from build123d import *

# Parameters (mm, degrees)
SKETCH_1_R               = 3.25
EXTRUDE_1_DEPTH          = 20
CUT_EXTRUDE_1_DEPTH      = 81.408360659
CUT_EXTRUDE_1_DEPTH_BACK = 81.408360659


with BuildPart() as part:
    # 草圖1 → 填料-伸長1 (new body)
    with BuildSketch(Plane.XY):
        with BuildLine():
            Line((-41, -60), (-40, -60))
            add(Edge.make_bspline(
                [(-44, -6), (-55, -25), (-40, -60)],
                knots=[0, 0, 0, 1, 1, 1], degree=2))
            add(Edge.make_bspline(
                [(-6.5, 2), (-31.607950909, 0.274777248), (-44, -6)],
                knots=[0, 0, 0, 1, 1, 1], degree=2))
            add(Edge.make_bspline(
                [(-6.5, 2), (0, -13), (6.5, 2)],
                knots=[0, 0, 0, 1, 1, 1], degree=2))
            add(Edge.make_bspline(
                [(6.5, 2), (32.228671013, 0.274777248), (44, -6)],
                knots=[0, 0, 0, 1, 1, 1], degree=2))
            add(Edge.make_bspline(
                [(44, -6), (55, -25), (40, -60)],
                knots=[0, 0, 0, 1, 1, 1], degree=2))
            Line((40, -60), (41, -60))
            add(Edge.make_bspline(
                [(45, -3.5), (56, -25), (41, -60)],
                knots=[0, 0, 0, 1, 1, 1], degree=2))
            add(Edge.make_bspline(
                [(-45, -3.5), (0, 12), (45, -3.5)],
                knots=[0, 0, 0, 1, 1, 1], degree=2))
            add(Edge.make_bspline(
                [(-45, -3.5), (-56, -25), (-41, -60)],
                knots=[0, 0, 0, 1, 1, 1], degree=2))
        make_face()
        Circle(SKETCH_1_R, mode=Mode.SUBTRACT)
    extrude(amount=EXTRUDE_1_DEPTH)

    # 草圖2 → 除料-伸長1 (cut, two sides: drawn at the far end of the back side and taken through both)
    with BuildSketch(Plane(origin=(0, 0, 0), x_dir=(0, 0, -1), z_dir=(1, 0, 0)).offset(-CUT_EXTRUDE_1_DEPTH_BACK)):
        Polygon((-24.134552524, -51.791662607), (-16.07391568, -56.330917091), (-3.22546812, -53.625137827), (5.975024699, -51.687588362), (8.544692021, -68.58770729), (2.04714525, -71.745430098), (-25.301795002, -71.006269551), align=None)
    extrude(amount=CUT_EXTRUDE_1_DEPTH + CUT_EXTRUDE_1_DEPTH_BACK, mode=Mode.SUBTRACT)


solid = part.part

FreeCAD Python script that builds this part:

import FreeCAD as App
import Part
import Sketcher


def add_polygon(sketch, points):
    """Adds a closed chain of lines whose ends are joined by coincident constraints."""
    first, n = sketch.GeometryCount, len(points)
    for a, b in zip(points, points[1:] + points[:1]):
        sketch.addGeometry(Part.LineSegment(App.Vector(*a, 0), App.Vector(*b, 0)), False)
    for i in range(n):
        sketch.addConstraint(Sketcher.Constraint("Coincident", first + i, 2, first + (i + 1) % n, 1))

doc = App.newDocument("Part")
body = doc.addObject("PartDesign::Body", "Body")

# Sketch on XY plane
sketch1 = doc.addObject("Sketcher::SketchObject", "Sketch")
body.addObject(sketch1)
sketch1.AttachmentSupport = (doc.XY_Plane, [""])
sketch1.MapMode = "FlatFace"
sketch1.addGeometry(Part.LineSegment(App.Vector(-41, -60, 0), App.Vector(-40, -60, 0)), False)
sketch1.addGeometry(Part.BSplineCurve([App.Vector(-44, -6, 0), App.Vector(-55, -25, 0), App.Vector(-40, -60, 0)], [3, 3], [0, 1], False, 2, [1, 1, 1], False), False)
sketch1.addGeometry(Part.BSplineCurve([App.Vector(-6.5, 2, 0), App.Vector(-31.607951, 0.274777, 0), App.Vector(-44, -6, 0)], [3, 3], [0, 1], False, 2, [1, 1, 1], False), False)
sketch1.addGeometry(Part.BSplineCurve([App.Vector(-6.5, 2, 0), App.Vector(0, -13, 0), App.Vector(6.5, 2, 0)], [3, 3], [0, 1], False, 2, [1, 1, 1], False), False)
sketch1.addGeometry(Part.BSplineCurve([App.Vector(6.5, 2, 0), App.Vector(32.228671, 0.274777, 0), App.Vector(44, -6, 0)], [3, 3], [0, 1], False, 2, [1, 1, 1], False), False)
sketch1.addGeometry(Part.BSplineCurve([App.Vector(44, -6, 0), App.Vector(55, -25, 0), App.Vector(40, -60, 0)], [3, 3], [0, 1], False, 2, [1, 1, 1], False), False)
sketch1.addGeometry(Part.LineSegment(App.Vector(40, -60, 0), App.Vector(41, -60, 0)), False)
sketch1.addGeometry(Part.BSplineCurve([App.Vector(45, -3.5, 0), App.Vector(56, -25, 0), App.Vector(41, -60, 0)], [3, 3], [0, 1], False, 2, [1, 1, 1], False), False)
sketch1.addGeometry(Part.BSplineCurve([App.Vector(-45, -3.5, 0), App.Vector(0, 12, 0), App.Vector(45, -3.5, 0)], [3, 3], [0, 1], False, 2, [1, 1, 1], False), False)
sketch1.addGeometry(Part.BSplineCurve([App.Vector(-45, -3.5, 0), App.Vector(-56, -25, 0), App.Vector(-41, -60, 0)], [3, 3], [0, 1], False, 2, [1, 1, 1], False), False)
sketch1.addGeometry(Part.Circle(App.Vector(0, 0, 0), App.Vector(0, 0, 1), 3.25), False)
sketch1.addConstraint(Sketcher.Constraint("Block", 1))
sketch1.addConstraint(Sketcher.Constraint("Block", 2))
sketch1.addConstraint(Sketcher.Constraint("Block", 3))
sketch1.addConstraint(Sketcher.Constraint("Block", 4))
sketch1.addConstraint(Sketcher.Constraint("Block", 5))
sketch1.addConstraint(Sketcher.Constraint("Block", 7))
sketch1.addConstraint(Sketcher.Constraint("Block", 8))
sketch1.addConstraint(Sketcher.Constraint("Block", 9))
sketch1.addConstraint(Sketcher.Constraint("Coincident", 0, 2, 1, 2))
sketch1.addConstraint(Sketcher.Constraint("Coincident", 5, 2, 6, 1))
sketch1.addConstraint(Sketcher.Constraint("Coincident", 6, 2, 7, 2))
sketch1.addConstraint(Sketcher.Constraint("Coincident", 9, 2, 0, 1))
sketch1.addConstraint(Sketcher.Constraint("Coincident", 10, 3, -1, 1))
sketch1.addConstraint(Sketcher.Constraint("Diameter", 10, 6.5))
pad1 = doc.addObject("PartDesign::Pad", "Pad")
body.addObject(pad1)
pad1.Profile = sketch1
pad1.Length = 20

# Sketch on YZ plane
sketch2 = doc.addObject("Sketcher::SketchObject", "Sketch001")
body.addObject(sketch2)
sketch2.AttachmentSupport = (doc.YZ_Plane, [""])
sketch2.MapMode = "FlatFace"
add_polygon(sketch2, [(-56, 16), (-52, 24), (-71, 25), (-72, -2), (-69, -9), (-52, -6), (-54, 3)])  # lines 0-6
sketch2.addConstraint(Sketcher.Constraint("Parallel", 5, 6))
sketch2.addConstraint(Sketcher.Constraint("Distance", 3, 7.224218))
sketch2.addConstraint(Sketcher.Constraint("Distance", 4, 17.094362))
sketch2.addConstraint(Sketcher.Constraint("DistanceX", 1, 2, -1, 1, 71.00627))
sketch2.addConstraint(Sketcher.Constraint("DistanceX", 2, 2, -1, 1, 71.74543))
sketch2.addConstraint(Sketcher.Constraint("DistanceX", 4, 2, -1, 1, 51.687588))
sketch2.addConstraint(Sketcher.Constraint("DistanceY", -1, 1, 5, 2, 3.225468))
sketch2.addConstraint(Sketcher.Constraint("DistanceY", 2, 2, 1, 2, 27.34894))
sketch2.addConstraint(Sketcher.Constraint("DistanceX", 3, 2, 4, 2, 16.900119))
sketch2.addConstraint(Sketcher.Constraint("DistanceX", 5, 2, 4, 2, 1.937549))
sketch2.addConstraint(Sketcher.Constraint("DistanceY", 3, 2, 5, 2, 11.77016))
sketch2.addConstraint(Sketcher.Constraint("DistanceX", 6, 2, 5, 2, 2.705779))
sketch2.addConstraint(Sketcher.Constraint("Distance", 0, 9.250876))
sketch2.addConstraint(Sketcher.Constraint("Distance", 1, 19.250028))
pocket1 = doc.addObject("PartDesign::Pocket", "Pocket")
body.addObject(pocket1)
pocket1.Profile = sketch2
pocket1.Type = "ThroughAll"
pocket1.Midplane = True

doc.recompute()
